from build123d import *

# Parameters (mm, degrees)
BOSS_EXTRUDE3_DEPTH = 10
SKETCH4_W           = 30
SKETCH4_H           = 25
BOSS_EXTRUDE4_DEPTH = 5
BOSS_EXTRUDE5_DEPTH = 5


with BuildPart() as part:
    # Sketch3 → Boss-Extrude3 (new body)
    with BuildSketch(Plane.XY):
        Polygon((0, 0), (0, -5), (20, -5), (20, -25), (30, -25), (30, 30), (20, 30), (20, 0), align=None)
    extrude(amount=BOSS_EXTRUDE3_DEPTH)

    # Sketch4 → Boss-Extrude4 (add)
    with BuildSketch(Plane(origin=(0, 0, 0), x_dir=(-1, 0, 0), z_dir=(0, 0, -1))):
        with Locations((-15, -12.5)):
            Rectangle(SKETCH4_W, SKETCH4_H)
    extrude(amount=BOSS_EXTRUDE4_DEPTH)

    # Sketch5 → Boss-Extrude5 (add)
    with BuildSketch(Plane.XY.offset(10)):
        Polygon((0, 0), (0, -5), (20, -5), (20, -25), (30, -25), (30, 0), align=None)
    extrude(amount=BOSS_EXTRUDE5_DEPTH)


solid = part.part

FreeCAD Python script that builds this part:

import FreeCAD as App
import Part
import Sketcher

V = App.Vector

doc = App.newDocument("Part")
params = doc.addObject("Spreadsheet::Sheet", "Params")
for row, (alias, value) in enumerate([
    ("sketch1_width", "20 mm"),
    ("sketch1_width2", "10 mm"),
    ("sketch1_height", "5 mm"),
    ("sketch1_height2", "55 mm"),
    ("pad1_length", "10 mm"),
    ("sketch2_width", "30 mm"),
    ("sketch2_height", "25 mm"),
    ("pad2_length", "5 mm"),
    ("sketch3_width", "20 mm"),
    ("sketch3_width2", "10 mm"),
    ("sketch3_height", "5 mm"),
    ("pad3_length", "5 mm"),
], start=1):
    params.set(f"A{row}", alias)
    params.set(f"B{row}", "=" + value)
    params.setAlias(f"B{row}", alias)

body = doc.addObject("PartDesign::Body", "Body")

# Sketch on XY plane
sketch1 = body.newObject("Sketcher::SketchObject", "Sketch")
sketch1.AttachmentSupport = (doc.getObject("XY_Plane"), [""])
sketch1.MapMode = "FlatFace"
sketch1.addGeometry(Part.LineSegment(V(0, 0, 0), V(0, -5, 0)), False)
sketch1.addGeometry(Part.LineSegment(V(0, -5, 0), V(20, -5, 0)), False)
sketch1.addGeometry(Part.LineSegment(V(20, -5, 0), V(20, -25, 0)), False)
sketch1.addGeometry(Part.LineSegment(V(20, -25, 0), V(30, -25, 0)), False)
sketch1.addGeometry(Part.LineSegment(V(30, -25, 0), V(30, 30, 0)), False)
sketch1.addGeometry(Part.LineSegment(V(30, 30, 0), V(20, 30, 0)), False)
sketch1.addGeometry(Part.LineSegment(V(20, 30, 0), V(20, 0, 0)), False)
sketch1.addGeometry(Part.LineSegment(V(20, 0, 0), V(0, 0, 0)), False)
sketch1.addConstraint(Sketcher.Constraint("Coincident", 0, 2, 1, 1))
sketch1.addConstraint(Sketcher.Constraint("Coincident", 1, 2, 2, 1))
sketch1.addConstraint(Sketcher.Constraint("Coincident", 2, 2, 3, 1))
sketch1.addConstraint(Sketcher.Constraint("Coincident", 3, 2, 4, 1))
sketch1.addConstraint(Sketcher.Constraint("Coincident", 4, 2, 5, 1))
sketch1.addConstraint(Sketcher.Constraint("Coincident", 5, 2, 6, 1))
sketch1.addConstraint(Sketcher.Constraint("Coincident", 6, 2, 7, 1))
sketch1.addConstraint(Sketcher.Constraint("Coincident", 7, 2, 0, 1))
sketch1.addConstraint(Sketcher.Constraint("Vertical", 0))
sketch1.addConstraint(Sketcher.Constraint("Horizontal", 1))
sketch1.addConstraint(Sketcher.Constraint("Vertical", 2))
sketch1.addConstraint(Sketcher.Constraint("Horizontal", 3))
sketch1.addConstraint(Sketcher.Constraint("Vertical", 4))
sketch1.addConstraint(Sketcher.Constraint("Horizontal", 5))
sketch1.addConstraint(Sketcher.Constraint("Vertical", 6))
sketch1.addConstraint(Sketcher.Constraint("Horizontal", 7))
sketch1.addConstraint(Sketcher.Constraint("Coincident", 7, 2, -1, 1))
sketch1.addConstraint(Sketcher.Constraint("Vertical", 2, 2, 5, 2))
sketch1.addConstraint(Sketcher.Constraint("Equal", 7, 2))
sketch1.addConstraint(Sketcher.Constraint("DistanceX", 1, 1, 1, 2, 20.0))
sketch1.addConstraint(Sketcher.Constraint("DistanceX", 3, 1, 3, 2, 10.0))
sketch1.addConstraint(Sketcher.Constraint("DistanceY", 0, 2, 0, 1, 5.0))
sketch1.addConstraint(Sketcher.Constraint("DistanceY", 4, 1, 4, 2, 55.0))
sketch1.setExpression("Constraints[19]", "Params.sketch1_width")
sketch1.setExpression("Constraints[20]", "Params.sketch1_width2")
sketch1.setExpression("Constraints[21]", "Params.sketch1_height")
sketch1.setExpression("Constraints[22]", "Params.sketch1_height2")
pad1 = body.newObject("PartDesign::Pad", "Pad")
pad1.Profile = sketch1
pad1.setExpression("Length", "Params.pad1_length")

# Sketch on XY plane
sketch2 = body.newObject("Sketcher::SketchObject", "Sketch001")
sketch2.AttachmentSupport = (doc.getObject("XY_Plane"), [""])
sketch2.MapMode = "FlatFace"
sketch2.addGeometry(Part.LineSegment(V(30, 0, 0), V(30, -25, 0)), False)
sketch2.addGeometry(Part.LineSegment(V(30, -25, 0), V(0, -25, 0)), False)
sketch2.addGeometry(Part.LineSegment(V(0, -25, 0), V(0, 0, 0)), False)
sketch2.addGeometry(Part.LineSegment(V(0, 0, 0), V(30, 0, 0)), False)
sketch2.addConstraint(Sketcher.Constraint("Coincident", 0, 2, 1, 1))
sketch2.addConstraint(Sketcher.Constraint("Coincident", 1, 2, 2, 1))
sketch2.addConstraint(Sketcher.Constraint("Coincident", 2, 2, 3, 1))
sketch2.addConstraint(Sketcher.Constraint("Coincident", 3, 2, 0, 1))
sketch2.addConstraint(Sketcher.Constraint("Vertical", 0))
sketch2.addConstraint(Sketcher.Constraint("Horizontal", 1))
sketch2.addConstraint(Sketcher.Constraint("Vertical", 2))
sketch2.addConstraint(Sketcher.Constraint("Horizontal", 3))
sketch2.addConstraint(Sketcher.Constraint("Coincident", 2, 2, -1, 1))
sketch2.addConstraint(Sketcher.Constraint("DistanceX", 1, 2, 1, 1, 30.0))
sketch2.addConstraint(Sketcher.Constraint("DistanceY", 0, 2, 0, 1, 25.0))
sketch2.setExpression("Constraints[9]", "Params.sketch2_width")
sketch2.setExpression("Constraints[10]", "Params.sketch2_height")
pad2 = body.newObject("PartDesign::Pad", "Pad001")
pad2.Profile = sketch2
pad2.setExpression("Length", "Params.pad2_length")
pad2.Reversed = True

# Sketch on XY plane
sketch3 = body.newObject("Sketcher::SketchObject", "Sketch002")
sketch3.AttachmentSupport = (doc.getObject("XY_Plane"), [""])
sketch3.MapMode = "FlatFace"
sketch3.AttachmentOffset = App.Placement(V(0, 0, 10), App.Rotation())
sketch3.addGeometry(Part.LineSegment(V(0, 0, 0), V(0, -5, 0)), False)
sketch3.addGeometry(Part.LineSegment(V(0, -5, 0), V(20, -5, 0)), False)
sketch3.addGeometry(Part.LineSegment(V(20, -5, 0), V(20, -25, 0)), False)
sketch3.addGeometry(Part.LineSegment(V(20, -25, 0), V(30, -25, 0)), False)
sketch3.addGeometry(Part.LineSegment(V(30, -25, 0), V(30, 0, 0)), False)
sketch3.addGeometry(Part.LineSegment(V(30, 0, 0), V(0, 0, 0)), False)
sketch3.addConstraint(Sketcher.Constraint("Coincident", 0, 2, 1, 1))
sketch3.addConstraint(Sketcher.Constraint("Coincident", 1, 2, 2, 1))
sketch3.addConstraint(Sketcher.Constraint("Coincident", 2, 2, 3, 1))
sketch3.addConstraint(Sketcher.Constraint("Coincident", 3, 2, 4, 1))
sketch3.addConstraint(Sketcher.Constraint("Coincident", 4, 2, 5, 1))
sketch3.addConstraint(Sketcher.Constraint("Coincident", 5, 2, 0, 1))
sketch3.addConstraint(Sketcher.Constraint("Vertical", 0))
sketch3.addConstraint(Sketcher.Constraint("Horizontal", 1))
sketch3.addConstraint(Sketcher.Constraint("Vertical", 2))
sketch3.addConstraint(Sketcher.Constraint("Horizontal", 3))
sketch3.addConstraint(Sketcher.Constraint("Vertical", 4))
sketch3.addConstraint(Sketcher.Constraint("Horizontal", 5))
sketch3.addConstraint(Sketcher.Constraint("Coincident", 5, 2, -1, 1))
sketch3.addConstraint(Sketcher.Constraint("Equal", 1, 2))
sketch3.addConstraint(Sketcher.Constraint("DistanceX", 1, 1, 1, 2, 20.0))
sketch3.addConstraint(Sketcher.Constraint("DistanceX", 3, 1, 3, 2, 10.0))
sketch3.addConstraint(Sketcher.Constraint("DistanceY", 0, 2, 0, 1, 5.0))
sketch3.setExpression("Constraints[14]", "Params.sketch3_width")
sketch3.setExpression("Constraints[15]", "Params.sketch3_width2")
sketch3.setExpression("Constraints[16]", "Params.sketch3_height")
pad3 = body.newObject("PartDesign::Pad", "Pad002")
pad3.Profile = sketch3
pad3.setExpression("Length", "Params.pad3_length")

doc.recompute()
